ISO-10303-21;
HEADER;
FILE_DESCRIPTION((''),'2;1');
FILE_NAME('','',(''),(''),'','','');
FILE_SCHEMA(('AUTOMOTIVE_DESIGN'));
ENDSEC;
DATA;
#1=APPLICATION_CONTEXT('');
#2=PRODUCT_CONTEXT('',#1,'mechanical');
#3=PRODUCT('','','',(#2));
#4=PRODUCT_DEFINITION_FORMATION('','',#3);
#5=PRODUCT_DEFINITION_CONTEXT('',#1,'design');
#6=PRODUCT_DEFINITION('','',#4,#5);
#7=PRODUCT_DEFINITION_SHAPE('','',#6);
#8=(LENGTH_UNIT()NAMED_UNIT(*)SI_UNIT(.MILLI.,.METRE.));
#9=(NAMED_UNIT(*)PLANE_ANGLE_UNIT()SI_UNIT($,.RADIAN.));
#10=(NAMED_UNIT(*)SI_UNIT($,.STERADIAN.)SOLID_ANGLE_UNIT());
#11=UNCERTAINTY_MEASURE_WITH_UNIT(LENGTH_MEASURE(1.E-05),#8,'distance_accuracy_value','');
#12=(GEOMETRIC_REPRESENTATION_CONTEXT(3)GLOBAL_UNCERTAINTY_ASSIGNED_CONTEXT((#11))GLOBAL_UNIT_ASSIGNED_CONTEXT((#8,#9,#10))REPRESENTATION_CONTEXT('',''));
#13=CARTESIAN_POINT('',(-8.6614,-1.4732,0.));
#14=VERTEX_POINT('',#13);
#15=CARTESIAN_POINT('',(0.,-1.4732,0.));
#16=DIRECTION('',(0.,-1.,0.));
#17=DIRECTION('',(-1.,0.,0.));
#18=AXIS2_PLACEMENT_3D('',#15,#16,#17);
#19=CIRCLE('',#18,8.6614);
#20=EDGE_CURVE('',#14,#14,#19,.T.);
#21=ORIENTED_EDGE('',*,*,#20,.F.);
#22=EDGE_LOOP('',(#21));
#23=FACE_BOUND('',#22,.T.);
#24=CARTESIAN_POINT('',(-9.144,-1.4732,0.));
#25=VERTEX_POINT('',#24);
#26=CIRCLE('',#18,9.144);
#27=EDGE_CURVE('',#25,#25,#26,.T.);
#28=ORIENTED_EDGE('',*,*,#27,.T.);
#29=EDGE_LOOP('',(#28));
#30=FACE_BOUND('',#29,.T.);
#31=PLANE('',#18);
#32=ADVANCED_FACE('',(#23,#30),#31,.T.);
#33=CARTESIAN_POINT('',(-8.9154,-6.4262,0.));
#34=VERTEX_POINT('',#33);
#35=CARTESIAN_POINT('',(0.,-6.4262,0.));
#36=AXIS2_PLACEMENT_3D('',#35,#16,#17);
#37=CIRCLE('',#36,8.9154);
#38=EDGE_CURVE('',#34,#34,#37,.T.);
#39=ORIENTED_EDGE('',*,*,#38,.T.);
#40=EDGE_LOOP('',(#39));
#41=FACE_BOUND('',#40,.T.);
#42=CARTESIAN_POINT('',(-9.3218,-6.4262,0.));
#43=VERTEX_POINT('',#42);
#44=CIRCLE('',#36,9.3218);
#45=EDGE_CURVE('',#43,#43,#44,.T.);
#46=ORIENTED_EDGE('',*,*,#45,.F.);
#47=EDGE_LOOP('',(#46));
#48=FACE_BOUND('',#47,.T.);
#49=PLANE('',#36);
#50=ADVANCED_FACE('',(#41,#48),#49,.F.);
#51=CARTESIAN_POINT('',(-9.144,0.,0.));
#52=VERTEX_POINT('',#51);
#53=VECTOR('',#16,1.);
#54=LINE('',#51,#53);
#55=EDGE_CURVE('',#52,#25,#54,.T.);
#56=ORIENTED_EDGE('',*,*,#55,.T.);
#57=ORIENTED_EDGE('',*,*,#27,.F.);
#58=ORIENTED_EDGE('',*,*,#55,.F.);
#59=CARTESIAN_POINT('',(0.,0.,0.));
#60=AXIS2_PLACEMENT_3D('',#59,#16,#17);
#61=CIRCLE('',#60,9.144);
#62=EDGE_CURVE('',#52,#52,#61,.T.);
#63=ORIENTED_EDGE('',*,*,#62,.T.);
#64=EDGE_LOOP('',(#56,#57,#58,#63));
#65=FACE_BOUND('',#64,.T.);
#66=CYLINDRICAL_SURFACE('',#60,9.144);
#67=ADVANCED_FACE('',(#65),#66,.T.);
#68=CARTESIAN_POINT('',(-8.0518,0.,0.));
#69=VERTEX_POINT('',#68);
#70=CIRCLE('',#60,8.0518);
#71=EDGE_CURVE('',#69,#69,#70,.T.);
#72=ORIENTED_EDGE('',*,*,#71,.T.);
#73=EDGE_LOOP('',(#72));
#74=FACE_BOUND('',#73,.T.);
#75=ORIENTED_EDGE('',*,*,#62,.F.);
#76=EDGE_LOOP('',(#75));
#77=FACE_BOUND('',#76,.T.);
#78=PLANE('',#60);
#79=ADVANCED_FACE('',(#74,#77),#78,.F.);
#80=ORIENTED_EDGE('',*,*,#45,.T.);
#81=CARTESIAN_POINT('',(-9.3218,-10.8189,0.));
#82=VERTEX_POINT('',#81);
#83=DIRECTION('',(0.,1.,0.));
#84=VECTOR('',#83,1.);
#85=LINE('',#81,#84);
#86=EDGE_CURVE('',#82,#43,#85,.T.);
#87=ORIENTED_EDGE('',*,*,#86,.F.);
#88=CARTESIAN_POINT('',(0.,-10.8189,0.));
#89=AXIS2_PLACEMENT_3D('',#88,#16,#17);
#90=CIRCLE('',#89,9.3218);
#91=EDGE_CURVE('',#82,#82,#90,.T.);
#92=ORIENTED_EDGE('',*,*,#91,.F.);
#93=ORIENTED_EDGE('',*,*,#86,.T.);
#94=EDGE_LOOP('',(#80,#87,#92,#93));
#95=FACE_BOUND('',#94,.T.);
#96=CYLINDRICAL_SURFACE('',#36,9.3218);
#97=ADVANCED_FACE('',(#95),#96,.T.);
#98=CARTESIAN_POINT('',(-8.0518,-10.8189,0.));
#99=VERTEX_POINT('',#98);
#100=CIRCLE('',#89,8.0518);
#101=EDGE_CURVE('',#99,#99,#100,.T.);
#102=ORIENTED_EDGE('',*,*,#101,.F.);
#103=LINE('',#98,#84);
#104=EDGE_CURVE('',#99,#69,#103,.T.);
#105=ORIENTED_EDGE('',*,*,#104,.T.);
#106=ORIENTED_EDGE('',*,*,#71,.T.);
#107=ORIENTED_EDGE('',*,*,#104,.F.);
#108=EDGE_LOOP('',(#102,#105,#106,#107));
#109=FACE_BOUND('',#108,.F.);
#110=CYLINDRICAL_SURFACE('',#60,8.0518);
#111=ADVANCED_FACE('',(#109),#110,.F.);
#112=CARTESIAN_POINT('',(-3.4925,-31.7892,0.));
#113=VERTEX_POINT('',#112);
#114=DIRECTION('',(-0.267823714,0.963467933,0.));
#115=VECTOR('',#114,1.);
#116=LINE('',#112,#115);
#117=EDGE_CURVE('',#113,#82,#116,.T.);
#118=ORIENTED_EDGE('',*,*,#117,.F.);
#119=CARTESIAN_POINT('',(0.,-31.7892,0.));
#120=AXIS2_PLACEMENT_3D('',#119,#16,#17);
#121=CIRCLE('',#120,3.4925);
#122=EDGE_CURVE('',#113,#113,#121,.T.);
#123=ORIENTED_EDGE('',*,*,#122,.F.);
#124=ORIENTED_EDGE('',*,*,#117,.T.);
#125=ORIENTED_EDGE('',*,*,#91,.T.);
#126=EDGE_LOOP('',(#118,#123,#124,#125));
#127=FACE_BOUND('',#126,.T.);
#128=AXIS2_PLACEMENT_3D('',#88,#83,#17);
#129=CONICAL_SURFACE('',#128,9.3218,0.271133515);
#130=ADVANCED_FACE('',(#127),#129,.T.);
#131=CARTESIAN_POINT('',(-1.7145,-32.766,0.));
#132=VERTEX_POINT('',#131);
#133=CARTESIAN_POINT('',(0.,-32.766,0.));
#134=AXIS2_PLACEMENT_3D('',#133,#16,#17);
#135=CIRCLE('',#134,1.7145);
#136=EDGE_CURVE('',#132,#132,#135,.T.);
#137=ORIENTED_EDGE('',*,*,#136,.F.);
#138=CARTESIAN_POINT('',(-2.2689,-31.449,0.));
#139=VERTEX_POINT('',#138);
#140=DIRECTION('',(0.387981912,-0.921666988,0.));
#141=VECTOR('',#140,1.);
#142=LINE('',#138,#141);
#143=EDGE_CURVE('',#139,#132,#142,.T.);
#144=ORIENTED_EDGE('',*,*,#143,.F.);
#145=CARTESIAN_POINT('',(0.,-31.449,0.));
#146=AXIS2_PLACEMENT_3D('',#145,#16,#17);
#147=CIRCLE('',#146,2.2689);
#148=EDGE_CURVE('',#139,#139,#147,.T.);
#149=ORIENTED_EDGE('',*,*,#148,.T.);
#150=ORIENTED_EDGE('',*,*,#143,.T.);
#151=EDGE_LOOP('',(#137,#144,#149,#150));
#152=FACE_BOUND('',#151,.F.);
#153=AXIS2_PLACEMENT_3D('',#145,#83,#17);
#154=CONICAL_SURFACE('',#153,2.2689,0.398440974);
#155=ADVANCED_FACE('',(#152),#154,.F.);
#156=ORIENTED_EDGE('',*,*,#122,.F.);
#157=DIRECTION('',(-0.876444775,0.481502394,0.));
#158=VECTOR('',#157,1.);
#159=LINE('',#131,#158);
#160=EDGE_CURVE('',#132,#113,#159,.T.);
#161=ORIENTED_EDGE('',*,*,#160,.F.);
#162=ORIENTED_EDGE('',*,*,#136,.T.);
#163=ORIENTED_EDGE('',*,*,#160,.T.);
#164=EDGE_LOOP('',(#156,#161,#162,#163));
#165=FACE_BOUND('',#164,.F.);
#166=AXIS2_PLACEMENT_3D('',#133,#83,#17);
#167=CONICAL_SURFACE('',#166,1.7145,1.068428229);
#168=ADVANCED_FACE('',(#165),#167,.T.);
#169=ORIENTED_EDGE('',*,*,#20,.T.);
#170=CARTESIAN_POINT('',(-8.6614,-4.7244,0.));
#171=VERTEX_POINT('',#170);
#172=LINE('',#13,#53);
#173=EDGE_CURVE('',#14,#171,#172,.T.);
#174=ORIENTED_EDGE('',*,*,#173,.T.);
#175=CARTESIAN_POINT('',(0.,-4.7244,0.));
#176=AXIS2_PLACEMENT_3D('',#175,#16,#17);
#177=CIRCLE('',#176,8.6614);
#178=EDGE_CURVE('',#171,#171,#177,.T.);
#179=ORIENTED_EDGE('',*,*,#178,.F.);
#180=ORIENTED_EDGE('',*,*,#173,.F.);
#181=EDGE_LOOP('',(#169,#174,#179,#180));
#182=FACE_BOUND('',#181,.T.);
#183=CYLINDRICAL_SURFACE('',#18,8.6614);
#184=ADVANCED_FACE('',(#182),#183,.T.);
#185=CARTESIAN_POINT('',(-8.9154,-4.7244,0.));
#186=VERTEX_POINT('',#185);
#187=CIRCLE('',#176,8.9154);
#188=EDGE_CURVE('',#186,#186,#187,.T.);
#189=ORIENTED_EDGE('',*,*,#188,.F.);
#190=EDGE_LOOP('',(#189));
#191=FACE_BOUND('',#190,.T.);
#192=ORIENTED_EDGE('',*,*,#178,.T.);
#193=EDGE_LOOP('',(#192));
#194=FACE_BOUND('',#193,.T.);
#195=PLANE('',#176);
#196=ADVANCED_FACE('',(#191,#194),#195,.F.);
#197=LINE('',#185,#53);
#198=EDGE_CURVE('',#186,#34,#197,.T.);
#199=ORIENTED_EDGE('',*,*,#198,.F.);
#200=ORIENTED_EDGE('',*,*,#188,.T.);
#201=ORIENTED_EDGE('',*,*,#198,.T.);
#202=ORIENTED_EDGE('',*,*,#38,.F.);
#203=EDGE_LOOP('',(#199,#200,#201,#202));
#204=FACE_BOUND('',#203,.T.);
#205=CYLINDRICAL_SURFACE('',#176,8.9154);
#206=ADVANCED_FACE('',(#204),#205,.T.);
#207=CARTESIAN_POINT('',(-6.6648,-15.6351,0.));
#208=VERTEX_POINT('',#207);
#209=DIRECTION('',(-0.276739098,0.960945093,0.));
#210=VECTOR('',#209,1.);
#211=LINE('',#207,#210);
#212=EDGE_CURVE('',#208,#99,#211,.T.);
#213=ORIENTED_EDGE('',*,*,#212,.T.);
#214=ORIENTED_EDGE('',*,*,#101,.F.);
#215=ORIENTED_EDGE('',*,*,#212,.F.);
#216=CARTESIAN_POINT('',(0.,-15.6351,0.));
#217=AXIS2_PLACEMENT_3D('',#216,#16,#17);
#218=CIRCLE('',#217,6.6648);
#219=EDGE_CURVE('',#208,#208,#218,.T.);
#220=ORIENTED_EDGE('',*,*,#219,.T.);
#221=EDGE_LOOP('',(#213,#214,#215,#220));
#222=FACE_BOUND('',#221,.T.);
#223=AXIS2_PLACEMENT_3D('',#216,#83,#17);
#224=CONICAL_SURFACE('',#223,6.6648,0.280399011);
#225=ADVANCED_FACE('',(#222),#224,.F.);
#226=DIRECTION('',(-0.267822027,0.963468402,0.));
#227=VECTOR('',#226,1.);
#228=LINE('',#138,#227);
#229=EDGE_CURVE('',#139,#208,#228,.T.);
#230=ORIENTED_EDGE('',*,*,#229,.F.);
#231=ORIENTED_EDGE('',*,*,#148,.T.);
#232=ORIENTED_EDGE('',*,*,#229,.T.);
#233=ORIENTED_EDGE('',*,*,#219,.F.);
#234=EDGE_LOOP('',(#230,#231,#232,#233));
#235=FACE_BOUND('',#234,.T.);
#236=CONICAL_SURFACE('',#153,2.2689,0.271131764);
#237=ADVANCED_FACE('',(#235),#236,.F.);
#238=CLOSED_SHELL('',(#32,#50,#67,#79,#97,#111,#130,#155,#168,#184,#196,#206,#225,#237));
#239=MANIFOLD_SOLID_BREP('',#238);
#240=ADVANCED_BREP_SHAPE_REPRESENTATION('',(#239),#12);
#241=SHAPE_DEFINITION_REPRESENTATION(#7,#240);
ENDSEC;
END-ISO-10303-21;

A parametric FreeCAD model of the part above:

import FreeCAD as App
import Part
import Sketcher
from FreeCAD import Vector
Q = App.Units.Quantity

doc = App.newDocument("Part")
params = doc.addObject("Spreadsheet::Sheet", "Params")
for row, (alias, value) in enumerate([
    ("sketch1_width", "0.016 in"),
    ("sketch1_width2", "0.01 in"),
    ("sketch1_width3", "0.043 in"),
    ("sketch1_height", "0.058 in"),
    ("sketch1_height2", "0.128 in"),
    ("revolution_angle", "360 deg"),
], start=1):
    params.set(f"A{row}", alias)
    params.set(f"B{row}", "=" + value)
    params.setAlias(f"B{row}", alias)

body = doc.addObject("PartDesign::Body", "Body")

sketch1 = body.newObject("Sketcher::SketchObject", "Sketch")
sketch1.AttachmentSupport = (doc.getObject("XY_Plane"), [""])
sketch1.MapMode = "FlatFace"
sketch1.addGeometry([
    Part.LineSegment(Vector(-8.05, 0, 0), Vector(-9.14, 0, 0)),
    Part.LineSegment(Vector(-9.14, 0, 0), Vector(-9.14, -1.47, 0)),
    Part.LineSegment(Vector(-9.14, -1.47, 0), Vector(-8.66, -1.47, 0)),
    Part.LineSegment(Vector(-8.66, -1.47, 0), Vector(-8.66, -4.72, 0)),
    Part.LineSegment(Vector(-8.66, -4.72, 0), Vector(-8.92, -4.72, 0)),
    Part.LineSegment(Vector(-8.92, -4.72, 0), Vector(-8.92, -6.43, 0)),
    Part.LineSegment(Vector(-8.92, -6.43, 0), Vector(-9.32, -6.43, 0)),
    Part.LineSegment(Vector(-9.32, -6.43, 0), Vector(-9.32, -10.82, 0)),
    Part.LineSegment(Vector(-9.32, -10.82, 0), Vector(-3.49, -31.79, 0)),
    Part.LineSegment(Vector(-3.49, -31.79, 0), Vector(-1.71, -32.77, 0)),
    Part.LineSegment(Vector(-1.71, -32.77, 0), Vector(-2.27, -31.45, 0)),
    Part.LineSegment(Vector(-2.27, -31.45, 0), Vector(-6.66, -15.64, 0)),
    Part.LineSegment(Vector(-6.66, -15.64, 0), Vector(-8.05, -10.82, 0)),
    Part.LineSegment(Vector(-8.05, -10.82, 0), Vector(-8.05, 0, 0)),
], False)
sketch1.addConstraint([
    Sketcher.Constraint("Coincident", 0, 2, 1, 1),
    Sketcher.Constraint("Coincident", 1, 2, 2, 1),
    Sketcher.Constraint("Coincident", 2, 2, 3, 1),
    Sketcher.Constraint("Coincident", 3, 2, 4, 1),
    Sketcher.Constraint("Coincident", 4, 2, 5, 1),
    Sketcher.Constraint("Coincident", 5, 2, 6, 1),
    Sketcher.Constraint("Coincident", 6, 2, 7, 1),
    Sketcher.Constraint("Coincident", 7, 2, 8, 1),
    Sketcher.Constraint("Coincident", 8, 2, 9, 1),
    Sketcher.Constraint("Coincident", 9, 2, 10, 1),
    Sketcher.Constraint("Coincident", 10, 2, 11, 1),
    Sketcher.Constraint("Coincident", 11, 2, 12, 1),
    Sketcher.Constraint("Coincident", 12, 2, 13, 1),
    Sketcher.Constraint("Coincident", 13, 2, 0, 1),
    Sketcher.Constraint("Horizontal", 0),
    Sketcher.Constraint("Vertical", 1),
    Sketcher.Constraint("Horizontal", 2),
    Sketcher.Constraint("Vertical", 3),
    Sketcher.Constraint("Horizontal", 4),
    Sketcher.Constraint("Vertical", 5),
    Sketcher.Constraint("Horizontal", 6),
    Sketcher.Constraint("Vertical", 7),
    Sketcher.Constraint("Vertical", 13),
    Sketcher.Constraint("PointOnObject", 0, 2, -1),
    Sketcher.Constraint("Parallel", 8, 11),
    Sketcher.Constraint("Horizontal", 7, 2, 12, 2),
    Sketcher.Constraint("DistanceX", 6, 2, 6, 1, Q("0.016 in")),
    Sketcher.Constraint("DistanceX", 8, 2, 9, 2, Q("0.07 in")),
    Sketcher.Constraint("DistanceX", 7, 2, 12, 2, Q("0.05 in")),
    Sketcher.Constraint("DistanceX", 4, 2, 4, 1, Q("0.01 in")),
    Sketcher.Constraint("DistanceX", 9, 2, -1, 1, Q("0.0675 in")),
    Sketcher.Constraint("DistanceY", 8, 2, 7, 2, Q("0.8256 in")),
    Sketcher.Constraint("DistanceX", 0, 2, 0, 1, Q("0.043 in")),
    Sketcher.Constraint("DistanceY", 1, 2, 1, 1, Q("0.058 in")),
    Sketcher.Constraint("DistanceY", 3, 2, 3, 1, Q("0.128 in")),
    Sketcher.Constraint("DistanceY", 5, 2, 5, 1, Q("0.067 in")),
    Sketcher.Constraint("DistanceX", 0, 2, -1, 1, Q("0.36 in")),
    Sketcher.Constraint("DistanceY", 9, 2, -1, 1, Q("1.29 in")),
    Sketcher.Constraint("Angle", 10, Q("112.829 deg")),
    Sketcher.Constraint("Distance", 11, Q("0.6462 in")),
    Sketcher.Constraint("DistanceY", 7, 2, 7, 1, 4.3927),
    Sketcher.Constraint("DistanceX", 11, 2, -1, 1, Q("0.2624 in")),
])
sketch1.setExpression("Constraints[26]", "Params.sketch1_width")
sketch1.setExpression("Constraints[29]", "Params.sketch1_width2")
sketch1.setExpression("Constraints[32]", "Params.sketch1_width3")
sketch1.setExpression("Constraints[33]", "Params.sketch1_height")
sketch1.setExpression("Constraints[34]", "Params.sketch1_height2")
revolution = body.newObject("PartDesign::Revolution", "Revolution")
revolution.Profile = sketch1
revolution.ReferenceAxis = (sketch1, ["V_Axis"])
revolution.setExpression("Angle", "Params.revolution_angle")

doc.recompute()
